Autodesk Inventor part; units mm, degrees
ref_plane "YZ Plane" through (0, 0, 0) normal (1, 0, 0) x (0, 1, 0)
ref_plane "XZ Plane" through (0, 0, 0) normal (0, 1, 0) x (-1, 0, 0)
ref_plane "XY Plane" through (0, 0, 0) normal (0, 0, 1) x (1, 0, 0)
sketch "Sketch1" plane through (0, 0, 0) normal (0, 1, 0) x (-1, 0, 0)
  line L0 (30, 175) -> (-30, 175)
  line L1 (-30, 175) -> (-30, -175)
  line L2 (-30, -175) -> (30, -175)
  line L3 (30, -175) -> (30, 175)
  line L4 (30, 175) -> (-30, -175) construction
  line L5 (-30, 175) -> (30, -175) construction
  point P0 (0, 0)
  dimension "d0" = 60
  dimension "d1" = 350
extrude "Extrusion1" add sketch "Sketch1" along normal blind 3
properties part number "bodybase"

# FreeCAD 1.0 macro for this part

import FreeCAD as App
import Part
import Sketcher

V = App.Vector

doc = App.newDocument("Part")
body = doc.addObject("PartDesign::Body", "Body")

sketch1 = body.newObject("Sketcher::SketchObject", "Sketch")
sketch1.AttachmentSupport = (doc.getObject("XZ_Plane"), [""])
sketch1.MapMode = "FlatFace"
sketch1.addGeometry([
    Part.LineSegment(V(-30, -175, 0), V(-30, 175, 0)),
    Part.LineSegment(V(-30, 175, 0), V(30, 175, 0)),
    Part.LineSegment(V(30, 175, 0), V(30, -175, 0)),
    Part.LineSegment(V(30, -175, 0), V(-30, -175, 0)),
], False)
sketch1.addConstraint([
    Sketcher.Constraint("Coincident", 0, 2, 1, 1),
    Sketcher.Constraint("Coincident", 1, 2, 2, 1),
    Sketcher.Constraint("Coincident", 2, 2, 3, 1),
    Sketcher.Constraint("Coincident", 3, 2, 0, 1),
    Sketcher.Constraint("Vertical", 0),
    Sketcher.Constraint("Horizontal", 1),
    Sketcher.Constraint("Vertical", 2),
    Sketcher.Constraint("Horizontal", 3),
    Sketcher.Constraint("Symmetric", 0, 2, 2, 2, -1, 1),
    Sketcher.Constraint("DistanceX", 1, 1, 1, 2, 60.0),
    Sketcher.Constraint("DistanceY", 0, 1, 0, 2, 350.0),
])
pad1 = body.newObject("PartDesign::Pad", "Pad")
pad1.Profile = sketch1
pad1.Length = 3
pad1.Reversed = True

doc.recompute()
